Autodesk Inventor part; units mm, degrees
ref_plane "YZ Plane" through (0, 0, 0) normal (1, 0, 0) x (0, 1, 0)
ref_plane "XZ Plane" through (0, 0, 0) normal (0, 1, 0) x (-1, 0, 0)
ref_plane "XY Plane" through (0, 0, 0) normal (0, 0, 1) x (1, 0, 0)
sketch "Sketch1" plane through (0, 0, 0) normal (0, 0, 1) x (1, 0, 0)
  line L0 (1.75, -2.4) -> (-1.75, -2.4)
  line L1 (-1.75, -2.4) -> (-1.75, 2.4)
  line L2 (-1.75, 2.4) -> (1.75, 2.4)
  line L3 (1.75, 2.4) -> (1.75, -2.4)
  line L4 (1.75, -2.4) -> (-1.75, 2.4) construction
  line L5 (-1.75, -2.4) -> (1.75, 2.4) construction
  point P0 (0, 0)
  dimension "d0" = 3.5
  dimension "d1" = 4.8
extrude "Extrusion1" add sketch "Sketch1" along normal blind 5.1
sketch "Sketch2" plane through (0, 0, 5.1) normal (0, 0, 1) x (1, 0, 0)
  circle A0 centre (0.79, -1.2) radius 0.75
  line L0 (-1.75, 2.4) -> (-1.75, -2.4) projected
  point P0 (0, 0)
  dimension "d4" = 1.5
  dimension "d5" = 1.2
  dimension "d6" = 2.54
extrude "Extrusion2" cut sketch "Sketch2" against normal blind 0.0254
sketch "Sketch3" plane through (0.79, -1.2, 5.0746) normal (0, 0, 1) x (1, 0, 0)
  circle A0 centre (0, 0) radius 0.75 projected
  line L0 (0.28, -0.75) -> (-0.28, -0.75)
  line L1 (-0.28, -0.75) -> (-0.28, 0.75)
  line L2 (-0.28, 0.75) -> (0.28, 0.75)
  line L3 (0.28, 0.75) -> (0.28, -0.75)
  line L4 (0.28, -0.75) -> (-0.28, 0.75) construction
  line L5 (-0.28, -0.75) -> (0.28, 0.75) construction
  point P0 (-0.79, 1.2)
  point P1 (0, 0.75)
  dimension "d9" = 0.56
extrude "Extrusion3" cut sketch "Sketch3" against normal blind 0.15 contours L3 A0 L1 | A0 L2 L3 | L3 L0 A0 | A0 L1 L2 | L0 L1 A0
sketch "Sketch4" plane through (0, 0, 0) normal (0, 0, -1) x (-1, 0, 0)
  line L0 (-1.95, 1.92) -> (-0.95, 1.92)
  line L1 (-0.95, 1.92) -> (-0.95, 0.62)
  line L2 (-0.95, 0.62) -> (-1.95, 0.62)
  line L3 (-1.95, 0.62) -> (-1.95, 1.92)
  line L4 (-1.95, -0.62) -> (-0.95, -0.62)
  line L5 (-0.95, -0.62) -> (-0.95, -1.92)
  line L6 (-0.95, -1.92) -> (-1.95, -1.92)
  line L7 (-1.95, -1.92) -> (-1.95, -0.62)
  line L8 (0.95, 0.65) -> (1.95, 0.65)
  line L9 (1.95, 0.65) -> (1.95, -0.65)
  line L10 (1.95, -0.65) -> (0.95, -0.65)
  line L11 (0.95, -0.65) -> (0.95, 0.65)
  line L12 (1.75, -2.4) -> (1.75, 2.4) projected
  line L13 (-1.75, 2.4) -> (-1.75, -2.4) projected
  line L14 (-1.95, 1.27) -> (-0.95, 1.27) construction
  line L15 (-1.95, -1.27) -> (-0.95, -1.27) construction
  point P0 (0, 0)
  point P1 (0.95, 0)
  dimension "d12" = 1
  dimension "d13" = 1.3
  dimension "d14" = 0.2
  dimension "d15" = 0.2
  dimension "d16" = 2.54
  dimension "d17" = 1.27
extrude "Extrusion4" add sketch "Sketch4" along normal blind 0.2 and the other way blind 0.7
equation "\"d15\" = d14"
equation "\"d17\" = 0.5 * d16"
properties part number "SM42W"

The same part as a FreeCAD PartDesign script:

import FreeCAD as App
import Part
import Sketcher

V = App.Vector
Q = App.Units.Quantity

doc = App.newDocument("Part")
body = doc.addObject("PartDesign::Body", "Body")

# Sketch on XY plane
sketch1 = body.newObject("Sketcher::SketchObject", "Sketch")
sketch1.AttachmentSupport = (doc.getObject("XY_Plane"), [""])
sketch1.MapMode = "FlatFace"
sketch1.addGeometry(Part.LineSegment(V(-1.75, -2.4, 0), V(1.75, -2.4, 0)), False)
sketch1.addGeometry(Part.LineSegment(V(1.75, -2.4, 0), V(1.75, 2.4, 0)), False)
sketch1.addGeometry(Part.LineSegment(V(1.75, 2.4, 0), V(-1.75, 2.4, 0)), False)
sketch1.addGeometry(Part.LineSegment(V(-1.75, 2.4, 0), V(-1.75, -2.4, 0)), False)
sketch1.addConstraint(Sketcher.Constraint("Coincident", 0, 2, 1, 1))
sketch1.addConstraint(Sketcher.Constraint("Coincident", 1, 2, 2, 1))
sketch1.addConstraint(Sketcher.Constraint("Coincident", 2, 2, 3, 1))
sketch1.addConstraint(Sketcher.Constraint("Coincident", 3, 2, 0, 1))
sketch1.addConstraint(Sketcher.Constraint("Horizontal", 0))
sketch1.addConstraint(Sketcher.Constraint("Vertical", 1))
sketch1.addConstraint(Sketcher.Constraint("Horizontal", 2))
sketch1.addConstraint(Sketcher.Constraint("Vertical", 3))
sketch1.addConstraint(Sketcher.Constraint("Symmetric", 0, 2, 2, 2, -1, 1))
sketch1.addConstraint(Sketcher.Constraint("DistanceX", 0, 1, 0, 2, Q("3.5 mm")))
sketch1.addConstraint(Sketcher.Constraint("DistanceY", 1, 1, 1, 2, Q("4.8 mm")))
pad1 = body.newObject("PartDesign::Pad", "Pad")
pad1.Profile = sketch1
pad1.Length = 5.1

# Sketch on XY plane
sketch2 = body.newObject("Sketcher::SketchObject", "Sketch001")
sketch2.AttachmentSupport = (doc.getObject("XY_Plane"), [""])
sketch2.MapMode = "FlatFace"
sketch2.AttachmentOffset = App.Placement(V(0, 0, 5.1), App.Rotation())
sketch2.addGeometry(Part.Circle(V(0.79, -1.2, 0), V(0, 0, 1), 0.75), False)
sketch2.addConstraint(Sketcher.Constraint("Diameter", 0, Q("1.5 mm")))
sketch2.addConstraint(Sketcher.Constraint("DistanceY", 0, 3, -1, 1, Q("1.2 mm")))
sketch2.addConstraint(Sketcher.Constraint("DistanceX", -1, 1, 0, 3, Q("0.79 mm")))
pocket1 = body.newObject("PartDesign::Pocket", "Pocket")
pocket1.Profile = sketch2
pocket1.Length = 0.0254

# Sketch on XY plane
sketch3 = body.newObject("Sketcher::SketchObject", "Sketch002")
sketch3.AttachmentSupport = (doc.getObject("XY_Plane"), [""])
sketch3.MapMode = "FlatFace"
sketch3.AttachmentOffset = App.Placement(V(0, 0, 5.0746), App.Rotation())
sketch3.addGeometry(Part.LineSegment(V(1.07, -0.45, 0), V(0.51, -0.45, 0)), False)
sketch3.addGeometry(Part.LineSegment(V(0.51, -0.45, 0), V(0.51, -1.95, 0)), False)
sketch3.addGeometry(Part.LineSegment(V(0.51, -1.95, 0), V(1.07, -1.95, 0)), False)
sketch3.addGeometry(Part.LineSegment(V(1.07, -1.95, 0), V(1.07, -0.45, 0)), False)
sketch3.addConstraint(Sketcher.Constraint("Coincident", 0, 2, 1, 1))
sketch3.addConstraint(Sketcher.Constraint("Coincident", 1, 2, 2, 1))
sketch3.addConstraint(Sketcher.Constraint("Coincident", 2, 2, 3, 1))
sketch3.addConstraint(Sketcher.Constraint("Coincident", 3, 2, 0, 1))
sketch3.addConstraint(Sketcher.Constraint("Horizontal", 0))
sketch3.addConstraint(Sketcher.Constraint("Vertical", 1))
sketch3.addConstraint(Sketcher.Constraint("Horizontal", 2))
sketch3.addConstraint(Sketcher.Constraint("Vertical", 3))
sketch3.addConstraint(Sketcher.Constraint("DistanceX", 0, 2, 0, 1, Q("0.56 mm")))
sketch3.addConstraint(Sketcher.Constraint("DistanceY", 1, 2, 1, 1, Q("1.5 mm")))
sketch3.addConstraint(Sketcher.Constraint("DistanceX", -1, 1, 0, 2, Q("0.51 mm")))
sketch3.addConstraint(Sketcher.Constraint("DistanceY", 0, 2, -1, 1, Q("0.45 mm")))
pocket2 = body.newObject("PartDesign::Pocket", "Pocket001")
pocket2.Profile = sketch3
pocket2.Length = 0.15

# Sketch on XY plane
sketch4 = body.newObject("Sketcher::SketchObject", "Sketch003")
sketch4.AttachmentSupport = (doc.getObject("XY_Plane"), [""])
sketch4.MapMode = "FlatFace"
sketch4.addGeometry(Part.LineSegment(V(0.95, -0.62, 0), V(1.95, -0.62, 0)), False)
sketch4.addGeometry(Part.LineSegment(V(1.95, -0.62, 0), V(1.95, -1.92, 0)), False)
sketch4.addGeometry(Part.LineSegment(V(1.95, -1.92, 0), V(0.95, -1.92, 0)), False)
sketch4.addGeometry(Part.LineSegment(V(0.95, -1.92, 0), V(0.95, -0.62, 0)), False)
sketch4.addGeometry(Part.LineSegment(V(1.95, 1.92, 0), V(1.95, 0.62, 0)), False)
sketch4.addGeometry(Part.LineSegment(V(1.95, 0.62, 0), V(0.95, 0.62, 0)), False)
sketch4.addGeometry(Part.LineSegment(V(0.95, 0.62, 0), V(0.95, 1.92, 0)), False)
sketch4.addGeometry(Part.LineSegment(V(0.95, 1.92, 0), V(1.95, 1.92, 0)), False)
sketch4.addGeometry(Part.LineSegment(V(-0.95, 0.65, 0), V(-0.95, -0.65, 0)), False)
sketch4.addGeometry(Part.LineSegment(V(-0.95, -0.65, 0), V(-1.95, -0.65, 0)), False)
sketch4.addGeometry(Part.LineSegment(V(-1.95, -0.65, 0), V(-1.95, 0.65, 0)), False)
sketch4.addGeometry(Part.LineSegment(V(-1.95, 0.65, 0), V(-0.95, 0.65, 0)), False)
sketch4.addConstraint(Sketcher.Constraint("Coincident", 0, 2, 1, 1))
sketch4.addConstraint(Sketcher.Constraint("Coincident", 1, 2, 2, 1))
sketch4.addConstraint(Sketcher.Constraint("Coincident", 2, 2, 3, 1))
sketch4.addConstraint(Sketcher.Constraint("Coincident", 3, 2, 0, 1))
sketch4.addConstraint(Sketcher.Constraint("Coincident", 4, 2, 5, 1))
sketch4.addConstraint(Sketcher.Constraint("Coincident", 5, 2, 6, 1))
sketch4.addConstraint(Sketcher.Constraint("Coincident", 6, 2, 7, 1))
sketch4.addConstraint(Sketcher.Constraint("Coincident", 7, 2, 4, 1))
sketch4.addConstraint(Sketcher.Constraint("Coincident", 8, 2, 9, 1))
sketch4.addConstraint(Sketcher.Constraint("Coincident", 9, 2, 10, 1))
sketch4.addConstraint(Sketcher.Constraint("Coincident", 10, 2, 11, 1))
sketch4.addConstraint(Sketcher.Constraint("Coincident", 11, 2, 8, 1))
sketch4.addConstraint(Sketcher.Constraint("Horizontal", 0))
sketch4.addConstraint(Sketcher.Constraint("Vertical", 1))
sketch4.addConstraint(Sketcher.Constraint("Horizontal", 2))
sketch4.addConstraint(Sketcher.Constraint("Vertical", 3))
sketch4.addConstraint(Sketcher.Constraint("Vertical", 4))
sketch4.addConstraint(Sketcher.Constraint("Horizontal", 5))
sketch4.addConstraint(Sketcher.Constraint("Vertical", 6))
sketch4.addConstraint(Sketcher.Constraint("Horizontal", 7))
sketch4.addConstraint(Sketcher.Constraint("Vertical", 8))
sketch4.addConstraint(Sketcher.Constraint("Horizontal", 9))
sketch4.addConstraint(Sketcher.Constraint("Vertical", 10))
sketch4.addConstraint(Sketcher.Constraint("Horizontal", 11))
sketch4.addConstraint(Sketcher.Constraint("Symmetric", 0, 2, 4, 2, -1))
sketch4.addConstraint(Sketcher.Constraint("Symmetric", 2, 2, 6, 2, -1))
sketch4.addConstraint(Sketcher.Constraint("Equal", 7, 9))
sketch4.addConstraint(Sketcher.Constraint("Equal", 6, 8))
sketch4.addConstraint(Sketcher.Constraint("DistanceX", 0, 1, 0, 2, Q("1 mm")))
sketch4.addConstraint(Sketcher.Constraint("DistanceY", 1, 2, 1, 1, Q("1.3 mm")))
sketch4.addConstraint(Sketcher.Constraint("DistanceY", 1, 2, 4, 2, Q("2.54 mm")))
sketch4.addConstraint(Sketcher.Constraint("DistanceY", 2, 2, 8, 2, Q("1.27 mm")))
sketch4.addConstraint(Sketcher.Constraint("DistanceX", 8, 2, 3, 2, Q("1.9 mm")))
sketch4.addConstraint(Sketcher.Constraint("DistanceX", -1, 1, 0, 2, Q("1.95 mm")))
pad2 = body.newObject("PartDesign::Pad", "Pad001")
pad2.Profile = sketch4
pad2.Type = "TwoLengths"
pad2.Length = 0.2
pad2.Length2 = 0.7
pad2.Reversed = True

doc.recompute()
